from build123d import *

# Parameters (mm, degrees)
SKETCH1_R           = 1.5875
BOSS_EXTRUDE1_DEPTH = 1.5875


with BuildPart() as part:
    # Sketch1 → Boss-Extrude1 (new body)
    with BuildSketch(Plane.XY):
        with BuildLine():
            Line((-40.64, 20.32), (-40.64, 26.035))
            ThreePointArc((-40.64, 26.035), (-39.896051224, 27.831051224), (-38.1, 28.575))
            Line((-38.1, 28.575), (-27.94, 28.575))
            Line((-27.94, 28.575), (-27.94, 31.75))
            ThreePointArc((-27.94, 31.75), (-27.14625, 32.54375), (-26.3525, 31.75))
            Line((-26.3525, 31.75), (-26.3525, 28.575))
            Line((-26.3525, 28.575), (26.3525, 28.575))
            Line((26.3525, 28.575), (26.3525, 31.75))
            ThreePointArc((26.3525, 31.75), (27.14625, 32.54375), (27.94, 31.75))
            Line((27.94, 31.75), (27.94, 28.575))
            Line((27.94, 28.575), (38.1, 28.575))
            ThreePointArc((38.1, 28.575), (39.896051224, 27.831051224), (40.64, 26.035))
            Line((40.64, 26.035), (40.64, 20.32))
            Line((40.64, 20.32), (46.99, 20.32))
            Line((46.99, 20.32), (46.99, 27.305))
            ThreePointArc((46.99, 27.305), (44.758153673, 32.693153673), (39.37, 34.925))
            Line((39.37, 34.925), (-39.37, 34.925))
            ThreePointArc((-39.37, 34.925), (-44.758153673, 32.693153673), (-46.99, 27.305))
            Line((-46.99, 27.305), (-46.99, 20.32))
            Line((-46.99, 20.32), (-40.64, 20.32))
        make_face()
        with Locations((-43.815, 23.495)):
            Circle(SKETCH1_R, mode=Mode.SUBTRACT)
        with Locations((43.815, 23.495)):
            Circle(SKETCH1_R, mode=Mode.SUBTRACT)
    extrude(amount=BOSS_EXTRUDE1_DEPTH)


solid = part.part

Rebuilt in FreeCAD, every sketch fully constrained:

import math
import FreeCAD as App
import Part
import Sketcher
from FreeCAD import Vector
Q = App.Units.Quantity

doc = App.newDocument("Part")
params = doc.addObject("Spreadsheet::Sheet", "Params")
for row, (alias, value) in enumerate([
    ("sketch1_radius", "0.1 in"),
    ("sketch1_radius2", "0.3 in"),
    ("sketch1_diameter", "0.125 in"),
    ("sketch1_width", "0.4 in"),
    ("sketch1_width2", "3.1 in"),
    ("pad1_length", "0.0625 in"),
], start=1):
    params.set(f"A{row}", alias)
    params.set(f"B{row}", "=" + value)
    params.setAlias(f"B{row}", alias)

body = doc.addObject("PartDesign::Body", "Body")

# Sketch on XY plane
sketch1 = body.newObject("Sketcher::SketchObject", "Sketch")
sketch1.AttachmentSupport = (doc.getObject("XY_Plane"), [""])
sketch1.MapMode = "FlatFace"
sketch1.addGeometry(Part.LineSegment(Vector(-40.6, 20.3, 0), Vector(-40.6, 26, 0)), False)
sketch1.addGeometry(Part.ArcOfCircle(Part.Circle(Vector(-38.1, 26, 0), Vector(0, 0, 1), 2.5), math.radians(90), math.radians(180)), False)
sketch1.addGeometry(Part.LineSegment(Vector(-38.1, 28.6, 0), Vector(-27.9, 28.6, 0)), False)
sketch1.addGeometry(Part.LineSegment(Vector(-27.9, 28.6, 0), Vector(-27.9, 31.8, 0)), False)
sketch1.addGeometry(Part.ArcOfCircle(Part.Circle(Vector(-27.1, 31.8, 0), Vector(0, 0, 1), 0.8), math.radians(0), math.radians(180)), False)
sketch1.addGeometry(Part.LineSegment(Vector(-26.4, 31.8, 0), Vector(-26.4, 28.6, 0)), False)
sketch1.addGeometry(Part.LineSegment(Vector(-26.4, 28.6, 0), Vector(26.4, 28.6, 0)), False)
sketch1.addGeometry(Part.LineSegment(Vector(26.4, 28.6, 0), Vector(26.4, 31.8, 0)), False)
sketch1.addGeometry(Part.ArcOfCircle(Part.Circle(Vector(27.1, 31.8, 0), Vector(0, 0, 1), 0.8), math.radians(0), math.radians(180)), False)
sketch1.addGeometry(Part.LineSegment(Vector(27.9, 31.8, 0), Vector(27.9, 28.6, 0)), False)
sketch1.addGeometry(Part.LineSegment(Vector(27.9, 28.6, 0), Vector(38.1, 28.6, 0)), False)
sketch1.addGeometry(Part.ArcOfCircle(Part.Circle(Vector(38.1, 26, 0), Vector(0, 0, 1), 2.5), math.radians(0), math.radians(90)), False)
sketch1.addGeometry(Part.LineSegment(Vector(40.6, 26, 0), Vector(40.6, 20.3, 0)), False)
sketch1.addGeometry(Part.LineSegment(Vector(40.6, 20.3, 0), Vector(47, 20.3, 0)), False)
sketch1.addGeometry(Part.LineSegment(Vector(47, 20.3, 0), Vector(47, 27.3, 0)), False)
sketch1.addGeometry(Part.ArcOfCircle(Part.Circle(Vector(39.4, 27.3, 0), Vector(0, 0, 1), 7.6), math.radians(0), math.radians(90)), False)
sketch1.addGeometry(Part.LineSegment(Vector(39.4, 34.9, 0), Vector(-39.4, 34.9, 0)), False)
sketch1.addGeometry(Part.ArcOfCircle(Part.Circle(Vector(-39.4, 27.3, 0), Vector(0, 0, 1), 7.6), math.radians(90), math.radians(180)), False)
sketch1.addGeometry(Part.LineSegment(Vector(-47, 27.3, 0), Vector(-47, 20.3, 0)), False)
sketch1.addGeometry(Part.LineSegment(Vector(-47, 20.3, 0), Vector(-40.6, 20.3, 0)), False)
sketch1.addGeometry(Part.Circle(Vector(-43.8, 23.5, 0), Vector(0, 0, 1), 1.6), False)
sketch1.addGeometry(Part.Circle(Vector(43.8, 23.5, 0), Vector(0, 0, 1), 1.6), False)
sketch1.addConstraint(Sketcher.Constraint("Tangent", 0, 2, 1, 2))
sketch1.addConstraint(Sketcher.Constraint("Tangent", 1, 1, 2, 1))
sketch1.addConstraint(Sketcher.Constraint("Coincident", 2, 2, 3, 1))
sketch1.addConstraint(Sketcher.Constraint("Tangent", 3, 2, 4, 2))
sketch1.addConstraint(Sketcher.Constraint("Tangent", 4, 1, 5, 1))
sketch1.addConstraint(Sketcher.Constraint("Coincident", 5, 2, 6, 1))
sketch1.addConstraint(Sketcher.Constraint("Coincident", 6, 2, 7, 1))
sketch1.addConstraint(Sketcher.Constraint("Tangent", 7, 2, 8, 2))
sketch1.addConstraint(Sketcher.Constraint("Tangent", 8, 1, 9, 1))
sketch1.addConstraint(Sketcher.Constraint("Coincident", 9, 2, 10, 1))
sketch1.addConstraint(Sketcher.Constraint("Tangent", 10, 2, 11, 2))
sketch1.addConstraint(Sketcher.Constraint("Tangent", 11, 1, 12, 1))
sketch1.addConstraint(Sketcher.Constraint("Coincident", 12, 2, 13, 1))
sketch1.addConstraint(Sketcher.Constraint("Coincident", 13, 2, 14, 1))
sketch1.addConstraint(Sketcher.Constraint("Tangent", 14, 2, 15, 1))
sketch1.addConstraint(Sketcher.Constraint("Tangent", 15, 2, 16, 1))
sketch1.addConstraint(Sketcher.Constraint("Tangent", 16, 2, 17, 1))
sketch1.addConstraint(Sketcher.Constraint("Tangent", 17, 2, 18, 1))
sketch1.addConstraint(Sketcher.Constraint("Coincident", 18, 2, 19, 1))
sketch1.addConstraint(Sketcher.Constraint("Coincident", 19, 2, 0, 1))
sketch1.addConstraint(Sketcher.Constraint("Vertical", 0))
sketch1.addConstraint(Sketcher.Constraint("Horizontal", 2))
sketch1.addConstraint(Sketcher.Constraint("Vertical", 3))
sketch1.addConstraint(Sketcher.Constraint("Vertical", 5))
sketch1.addConstraint(Sketcher.Constraint("Horizontal", 6))
sketch1.addConstraint(Sketcher.Constraint("Vertical", 7))
sketch1.addConstraint(Sketcher.Constraint("Vertical", 9))
sketch1.addConstraint(Sketcher.Constraint("Horizontal", 10))
sketch1.addConstraint(Sketcher.Constraint("Vertical", 12))
sketch1.addConstraint(Sketcher.Constraint("Horizontal", 13))
sketch1.addConstraint(Sketcher.Constraint("Vertical", 14))
sketch1.addConstraint(Sketcher.Constraint("Horizontal", 16))
sketch1.addConstraint(Sketcher.Constraint("Vertical", 18))
sketch1.addConstraint(Sketcher.Constraint("Horizontal", 19))
sketch1.addConstraint(Sketcher.Constraint("Equal", 4, 8))
sketch1.addConstraint(Sketcher.Constraint("Equal", 1, 11))
sketch1.addConstraint(Sketcher.Constraint("Equal", 15, 17))
sketch1.addConstraint(Sketcher.Constraint("Equal", 20, 21))
sketch1.addConstraint(Sketcher.Constraint("Symmetric", 4, 3, 8, 3, -2))
sketch1.addConstraint(Sketcher.Constraint("Symmetric", 1, 3, 11, 3, -2))
sketch1.addConstraint(Sketcher.Constraint("Symmetric", 20, 3, 21, 3, -2))
sketch1.addConstraint(Sketcher.Constraint("Symmetric", 13, 2, 18, 2, -2))
sketch1.addConstraint(Sketcher.Constraint("Horizontal", 2, 2, 5, 2))
sketch1.addConstraint(Sketcher.Constraint("Radius", 1, Q("0.1 in")))
sketch1.addConstraint(Sketcher.Constraint("Radius", 15, Q("0.3 in")))
sketch1.addConstraint(Sketcher.Constraint("Diameter", 20, Q("0.125 in")))
sketch1.addConstraint(Sketcher.Constraint("DistanceX", 2, 1, 2, 2, Q("0.4 in")))
sketch1.addConstraint(Sketcher.Constraint("DistanceX", 16, 2, 16, 1, Q("3.1 in")))
sketch1.addConstraint(Sketcher.Constraint("Radius", 4, Q("0.03125 in")))
sketch1.addConstraint(Sketcher.Constraint("DistanceX", 1, 3, 11, 3, Q("3 in")))
sketch1.addConstraint(Sketcher.Constraint("DistanceY", -1, 1, 12, 2, Q("0.8 in")))
sketch1.addConstraint(Sketcher.Constraint("DistanceY", 20, 3, 1, 3, Q("0.1 in")))
sketch1.addConstraint(Sketcher.Constraint("DistanceY", 0, 1, 0, 2, Q("0.225 in")))
sketch1.addConstraint(Sketcher.Constraint("DistanceY", 3, 1, 3, 2, Q("0.125 in")))
sketch1.addConstraint(Sketcher.Constraint("DistanceY", 14, 1, 14, 2, Q("0.275 in")))
sketch1.addConstraint(Sketcher.Constraint("DistanceX", 20, 3, -1, 1, Q("1.725 in")))
sketch1.setExpression("Constraints[43]", "Params.sketch1_radius")
sketch1.setExpression("Constraints[44]", "Params.sketch1_radius2")
sketch1.setExpression("Constraints[45]", "Params.sketch1_diameter")
sketch1.setExpression("Constraints[46]", "Params.sketch1_width")
sketch1.setExpression("Constraints[47]", "Params.sketch1_width2")
pad1 = body.newObject("PartDesign::Pad", "Pad")
pad1.Profile = sketch1
pad1.setExpression("Length", "Params.pad1_length")

doc.recompute()
